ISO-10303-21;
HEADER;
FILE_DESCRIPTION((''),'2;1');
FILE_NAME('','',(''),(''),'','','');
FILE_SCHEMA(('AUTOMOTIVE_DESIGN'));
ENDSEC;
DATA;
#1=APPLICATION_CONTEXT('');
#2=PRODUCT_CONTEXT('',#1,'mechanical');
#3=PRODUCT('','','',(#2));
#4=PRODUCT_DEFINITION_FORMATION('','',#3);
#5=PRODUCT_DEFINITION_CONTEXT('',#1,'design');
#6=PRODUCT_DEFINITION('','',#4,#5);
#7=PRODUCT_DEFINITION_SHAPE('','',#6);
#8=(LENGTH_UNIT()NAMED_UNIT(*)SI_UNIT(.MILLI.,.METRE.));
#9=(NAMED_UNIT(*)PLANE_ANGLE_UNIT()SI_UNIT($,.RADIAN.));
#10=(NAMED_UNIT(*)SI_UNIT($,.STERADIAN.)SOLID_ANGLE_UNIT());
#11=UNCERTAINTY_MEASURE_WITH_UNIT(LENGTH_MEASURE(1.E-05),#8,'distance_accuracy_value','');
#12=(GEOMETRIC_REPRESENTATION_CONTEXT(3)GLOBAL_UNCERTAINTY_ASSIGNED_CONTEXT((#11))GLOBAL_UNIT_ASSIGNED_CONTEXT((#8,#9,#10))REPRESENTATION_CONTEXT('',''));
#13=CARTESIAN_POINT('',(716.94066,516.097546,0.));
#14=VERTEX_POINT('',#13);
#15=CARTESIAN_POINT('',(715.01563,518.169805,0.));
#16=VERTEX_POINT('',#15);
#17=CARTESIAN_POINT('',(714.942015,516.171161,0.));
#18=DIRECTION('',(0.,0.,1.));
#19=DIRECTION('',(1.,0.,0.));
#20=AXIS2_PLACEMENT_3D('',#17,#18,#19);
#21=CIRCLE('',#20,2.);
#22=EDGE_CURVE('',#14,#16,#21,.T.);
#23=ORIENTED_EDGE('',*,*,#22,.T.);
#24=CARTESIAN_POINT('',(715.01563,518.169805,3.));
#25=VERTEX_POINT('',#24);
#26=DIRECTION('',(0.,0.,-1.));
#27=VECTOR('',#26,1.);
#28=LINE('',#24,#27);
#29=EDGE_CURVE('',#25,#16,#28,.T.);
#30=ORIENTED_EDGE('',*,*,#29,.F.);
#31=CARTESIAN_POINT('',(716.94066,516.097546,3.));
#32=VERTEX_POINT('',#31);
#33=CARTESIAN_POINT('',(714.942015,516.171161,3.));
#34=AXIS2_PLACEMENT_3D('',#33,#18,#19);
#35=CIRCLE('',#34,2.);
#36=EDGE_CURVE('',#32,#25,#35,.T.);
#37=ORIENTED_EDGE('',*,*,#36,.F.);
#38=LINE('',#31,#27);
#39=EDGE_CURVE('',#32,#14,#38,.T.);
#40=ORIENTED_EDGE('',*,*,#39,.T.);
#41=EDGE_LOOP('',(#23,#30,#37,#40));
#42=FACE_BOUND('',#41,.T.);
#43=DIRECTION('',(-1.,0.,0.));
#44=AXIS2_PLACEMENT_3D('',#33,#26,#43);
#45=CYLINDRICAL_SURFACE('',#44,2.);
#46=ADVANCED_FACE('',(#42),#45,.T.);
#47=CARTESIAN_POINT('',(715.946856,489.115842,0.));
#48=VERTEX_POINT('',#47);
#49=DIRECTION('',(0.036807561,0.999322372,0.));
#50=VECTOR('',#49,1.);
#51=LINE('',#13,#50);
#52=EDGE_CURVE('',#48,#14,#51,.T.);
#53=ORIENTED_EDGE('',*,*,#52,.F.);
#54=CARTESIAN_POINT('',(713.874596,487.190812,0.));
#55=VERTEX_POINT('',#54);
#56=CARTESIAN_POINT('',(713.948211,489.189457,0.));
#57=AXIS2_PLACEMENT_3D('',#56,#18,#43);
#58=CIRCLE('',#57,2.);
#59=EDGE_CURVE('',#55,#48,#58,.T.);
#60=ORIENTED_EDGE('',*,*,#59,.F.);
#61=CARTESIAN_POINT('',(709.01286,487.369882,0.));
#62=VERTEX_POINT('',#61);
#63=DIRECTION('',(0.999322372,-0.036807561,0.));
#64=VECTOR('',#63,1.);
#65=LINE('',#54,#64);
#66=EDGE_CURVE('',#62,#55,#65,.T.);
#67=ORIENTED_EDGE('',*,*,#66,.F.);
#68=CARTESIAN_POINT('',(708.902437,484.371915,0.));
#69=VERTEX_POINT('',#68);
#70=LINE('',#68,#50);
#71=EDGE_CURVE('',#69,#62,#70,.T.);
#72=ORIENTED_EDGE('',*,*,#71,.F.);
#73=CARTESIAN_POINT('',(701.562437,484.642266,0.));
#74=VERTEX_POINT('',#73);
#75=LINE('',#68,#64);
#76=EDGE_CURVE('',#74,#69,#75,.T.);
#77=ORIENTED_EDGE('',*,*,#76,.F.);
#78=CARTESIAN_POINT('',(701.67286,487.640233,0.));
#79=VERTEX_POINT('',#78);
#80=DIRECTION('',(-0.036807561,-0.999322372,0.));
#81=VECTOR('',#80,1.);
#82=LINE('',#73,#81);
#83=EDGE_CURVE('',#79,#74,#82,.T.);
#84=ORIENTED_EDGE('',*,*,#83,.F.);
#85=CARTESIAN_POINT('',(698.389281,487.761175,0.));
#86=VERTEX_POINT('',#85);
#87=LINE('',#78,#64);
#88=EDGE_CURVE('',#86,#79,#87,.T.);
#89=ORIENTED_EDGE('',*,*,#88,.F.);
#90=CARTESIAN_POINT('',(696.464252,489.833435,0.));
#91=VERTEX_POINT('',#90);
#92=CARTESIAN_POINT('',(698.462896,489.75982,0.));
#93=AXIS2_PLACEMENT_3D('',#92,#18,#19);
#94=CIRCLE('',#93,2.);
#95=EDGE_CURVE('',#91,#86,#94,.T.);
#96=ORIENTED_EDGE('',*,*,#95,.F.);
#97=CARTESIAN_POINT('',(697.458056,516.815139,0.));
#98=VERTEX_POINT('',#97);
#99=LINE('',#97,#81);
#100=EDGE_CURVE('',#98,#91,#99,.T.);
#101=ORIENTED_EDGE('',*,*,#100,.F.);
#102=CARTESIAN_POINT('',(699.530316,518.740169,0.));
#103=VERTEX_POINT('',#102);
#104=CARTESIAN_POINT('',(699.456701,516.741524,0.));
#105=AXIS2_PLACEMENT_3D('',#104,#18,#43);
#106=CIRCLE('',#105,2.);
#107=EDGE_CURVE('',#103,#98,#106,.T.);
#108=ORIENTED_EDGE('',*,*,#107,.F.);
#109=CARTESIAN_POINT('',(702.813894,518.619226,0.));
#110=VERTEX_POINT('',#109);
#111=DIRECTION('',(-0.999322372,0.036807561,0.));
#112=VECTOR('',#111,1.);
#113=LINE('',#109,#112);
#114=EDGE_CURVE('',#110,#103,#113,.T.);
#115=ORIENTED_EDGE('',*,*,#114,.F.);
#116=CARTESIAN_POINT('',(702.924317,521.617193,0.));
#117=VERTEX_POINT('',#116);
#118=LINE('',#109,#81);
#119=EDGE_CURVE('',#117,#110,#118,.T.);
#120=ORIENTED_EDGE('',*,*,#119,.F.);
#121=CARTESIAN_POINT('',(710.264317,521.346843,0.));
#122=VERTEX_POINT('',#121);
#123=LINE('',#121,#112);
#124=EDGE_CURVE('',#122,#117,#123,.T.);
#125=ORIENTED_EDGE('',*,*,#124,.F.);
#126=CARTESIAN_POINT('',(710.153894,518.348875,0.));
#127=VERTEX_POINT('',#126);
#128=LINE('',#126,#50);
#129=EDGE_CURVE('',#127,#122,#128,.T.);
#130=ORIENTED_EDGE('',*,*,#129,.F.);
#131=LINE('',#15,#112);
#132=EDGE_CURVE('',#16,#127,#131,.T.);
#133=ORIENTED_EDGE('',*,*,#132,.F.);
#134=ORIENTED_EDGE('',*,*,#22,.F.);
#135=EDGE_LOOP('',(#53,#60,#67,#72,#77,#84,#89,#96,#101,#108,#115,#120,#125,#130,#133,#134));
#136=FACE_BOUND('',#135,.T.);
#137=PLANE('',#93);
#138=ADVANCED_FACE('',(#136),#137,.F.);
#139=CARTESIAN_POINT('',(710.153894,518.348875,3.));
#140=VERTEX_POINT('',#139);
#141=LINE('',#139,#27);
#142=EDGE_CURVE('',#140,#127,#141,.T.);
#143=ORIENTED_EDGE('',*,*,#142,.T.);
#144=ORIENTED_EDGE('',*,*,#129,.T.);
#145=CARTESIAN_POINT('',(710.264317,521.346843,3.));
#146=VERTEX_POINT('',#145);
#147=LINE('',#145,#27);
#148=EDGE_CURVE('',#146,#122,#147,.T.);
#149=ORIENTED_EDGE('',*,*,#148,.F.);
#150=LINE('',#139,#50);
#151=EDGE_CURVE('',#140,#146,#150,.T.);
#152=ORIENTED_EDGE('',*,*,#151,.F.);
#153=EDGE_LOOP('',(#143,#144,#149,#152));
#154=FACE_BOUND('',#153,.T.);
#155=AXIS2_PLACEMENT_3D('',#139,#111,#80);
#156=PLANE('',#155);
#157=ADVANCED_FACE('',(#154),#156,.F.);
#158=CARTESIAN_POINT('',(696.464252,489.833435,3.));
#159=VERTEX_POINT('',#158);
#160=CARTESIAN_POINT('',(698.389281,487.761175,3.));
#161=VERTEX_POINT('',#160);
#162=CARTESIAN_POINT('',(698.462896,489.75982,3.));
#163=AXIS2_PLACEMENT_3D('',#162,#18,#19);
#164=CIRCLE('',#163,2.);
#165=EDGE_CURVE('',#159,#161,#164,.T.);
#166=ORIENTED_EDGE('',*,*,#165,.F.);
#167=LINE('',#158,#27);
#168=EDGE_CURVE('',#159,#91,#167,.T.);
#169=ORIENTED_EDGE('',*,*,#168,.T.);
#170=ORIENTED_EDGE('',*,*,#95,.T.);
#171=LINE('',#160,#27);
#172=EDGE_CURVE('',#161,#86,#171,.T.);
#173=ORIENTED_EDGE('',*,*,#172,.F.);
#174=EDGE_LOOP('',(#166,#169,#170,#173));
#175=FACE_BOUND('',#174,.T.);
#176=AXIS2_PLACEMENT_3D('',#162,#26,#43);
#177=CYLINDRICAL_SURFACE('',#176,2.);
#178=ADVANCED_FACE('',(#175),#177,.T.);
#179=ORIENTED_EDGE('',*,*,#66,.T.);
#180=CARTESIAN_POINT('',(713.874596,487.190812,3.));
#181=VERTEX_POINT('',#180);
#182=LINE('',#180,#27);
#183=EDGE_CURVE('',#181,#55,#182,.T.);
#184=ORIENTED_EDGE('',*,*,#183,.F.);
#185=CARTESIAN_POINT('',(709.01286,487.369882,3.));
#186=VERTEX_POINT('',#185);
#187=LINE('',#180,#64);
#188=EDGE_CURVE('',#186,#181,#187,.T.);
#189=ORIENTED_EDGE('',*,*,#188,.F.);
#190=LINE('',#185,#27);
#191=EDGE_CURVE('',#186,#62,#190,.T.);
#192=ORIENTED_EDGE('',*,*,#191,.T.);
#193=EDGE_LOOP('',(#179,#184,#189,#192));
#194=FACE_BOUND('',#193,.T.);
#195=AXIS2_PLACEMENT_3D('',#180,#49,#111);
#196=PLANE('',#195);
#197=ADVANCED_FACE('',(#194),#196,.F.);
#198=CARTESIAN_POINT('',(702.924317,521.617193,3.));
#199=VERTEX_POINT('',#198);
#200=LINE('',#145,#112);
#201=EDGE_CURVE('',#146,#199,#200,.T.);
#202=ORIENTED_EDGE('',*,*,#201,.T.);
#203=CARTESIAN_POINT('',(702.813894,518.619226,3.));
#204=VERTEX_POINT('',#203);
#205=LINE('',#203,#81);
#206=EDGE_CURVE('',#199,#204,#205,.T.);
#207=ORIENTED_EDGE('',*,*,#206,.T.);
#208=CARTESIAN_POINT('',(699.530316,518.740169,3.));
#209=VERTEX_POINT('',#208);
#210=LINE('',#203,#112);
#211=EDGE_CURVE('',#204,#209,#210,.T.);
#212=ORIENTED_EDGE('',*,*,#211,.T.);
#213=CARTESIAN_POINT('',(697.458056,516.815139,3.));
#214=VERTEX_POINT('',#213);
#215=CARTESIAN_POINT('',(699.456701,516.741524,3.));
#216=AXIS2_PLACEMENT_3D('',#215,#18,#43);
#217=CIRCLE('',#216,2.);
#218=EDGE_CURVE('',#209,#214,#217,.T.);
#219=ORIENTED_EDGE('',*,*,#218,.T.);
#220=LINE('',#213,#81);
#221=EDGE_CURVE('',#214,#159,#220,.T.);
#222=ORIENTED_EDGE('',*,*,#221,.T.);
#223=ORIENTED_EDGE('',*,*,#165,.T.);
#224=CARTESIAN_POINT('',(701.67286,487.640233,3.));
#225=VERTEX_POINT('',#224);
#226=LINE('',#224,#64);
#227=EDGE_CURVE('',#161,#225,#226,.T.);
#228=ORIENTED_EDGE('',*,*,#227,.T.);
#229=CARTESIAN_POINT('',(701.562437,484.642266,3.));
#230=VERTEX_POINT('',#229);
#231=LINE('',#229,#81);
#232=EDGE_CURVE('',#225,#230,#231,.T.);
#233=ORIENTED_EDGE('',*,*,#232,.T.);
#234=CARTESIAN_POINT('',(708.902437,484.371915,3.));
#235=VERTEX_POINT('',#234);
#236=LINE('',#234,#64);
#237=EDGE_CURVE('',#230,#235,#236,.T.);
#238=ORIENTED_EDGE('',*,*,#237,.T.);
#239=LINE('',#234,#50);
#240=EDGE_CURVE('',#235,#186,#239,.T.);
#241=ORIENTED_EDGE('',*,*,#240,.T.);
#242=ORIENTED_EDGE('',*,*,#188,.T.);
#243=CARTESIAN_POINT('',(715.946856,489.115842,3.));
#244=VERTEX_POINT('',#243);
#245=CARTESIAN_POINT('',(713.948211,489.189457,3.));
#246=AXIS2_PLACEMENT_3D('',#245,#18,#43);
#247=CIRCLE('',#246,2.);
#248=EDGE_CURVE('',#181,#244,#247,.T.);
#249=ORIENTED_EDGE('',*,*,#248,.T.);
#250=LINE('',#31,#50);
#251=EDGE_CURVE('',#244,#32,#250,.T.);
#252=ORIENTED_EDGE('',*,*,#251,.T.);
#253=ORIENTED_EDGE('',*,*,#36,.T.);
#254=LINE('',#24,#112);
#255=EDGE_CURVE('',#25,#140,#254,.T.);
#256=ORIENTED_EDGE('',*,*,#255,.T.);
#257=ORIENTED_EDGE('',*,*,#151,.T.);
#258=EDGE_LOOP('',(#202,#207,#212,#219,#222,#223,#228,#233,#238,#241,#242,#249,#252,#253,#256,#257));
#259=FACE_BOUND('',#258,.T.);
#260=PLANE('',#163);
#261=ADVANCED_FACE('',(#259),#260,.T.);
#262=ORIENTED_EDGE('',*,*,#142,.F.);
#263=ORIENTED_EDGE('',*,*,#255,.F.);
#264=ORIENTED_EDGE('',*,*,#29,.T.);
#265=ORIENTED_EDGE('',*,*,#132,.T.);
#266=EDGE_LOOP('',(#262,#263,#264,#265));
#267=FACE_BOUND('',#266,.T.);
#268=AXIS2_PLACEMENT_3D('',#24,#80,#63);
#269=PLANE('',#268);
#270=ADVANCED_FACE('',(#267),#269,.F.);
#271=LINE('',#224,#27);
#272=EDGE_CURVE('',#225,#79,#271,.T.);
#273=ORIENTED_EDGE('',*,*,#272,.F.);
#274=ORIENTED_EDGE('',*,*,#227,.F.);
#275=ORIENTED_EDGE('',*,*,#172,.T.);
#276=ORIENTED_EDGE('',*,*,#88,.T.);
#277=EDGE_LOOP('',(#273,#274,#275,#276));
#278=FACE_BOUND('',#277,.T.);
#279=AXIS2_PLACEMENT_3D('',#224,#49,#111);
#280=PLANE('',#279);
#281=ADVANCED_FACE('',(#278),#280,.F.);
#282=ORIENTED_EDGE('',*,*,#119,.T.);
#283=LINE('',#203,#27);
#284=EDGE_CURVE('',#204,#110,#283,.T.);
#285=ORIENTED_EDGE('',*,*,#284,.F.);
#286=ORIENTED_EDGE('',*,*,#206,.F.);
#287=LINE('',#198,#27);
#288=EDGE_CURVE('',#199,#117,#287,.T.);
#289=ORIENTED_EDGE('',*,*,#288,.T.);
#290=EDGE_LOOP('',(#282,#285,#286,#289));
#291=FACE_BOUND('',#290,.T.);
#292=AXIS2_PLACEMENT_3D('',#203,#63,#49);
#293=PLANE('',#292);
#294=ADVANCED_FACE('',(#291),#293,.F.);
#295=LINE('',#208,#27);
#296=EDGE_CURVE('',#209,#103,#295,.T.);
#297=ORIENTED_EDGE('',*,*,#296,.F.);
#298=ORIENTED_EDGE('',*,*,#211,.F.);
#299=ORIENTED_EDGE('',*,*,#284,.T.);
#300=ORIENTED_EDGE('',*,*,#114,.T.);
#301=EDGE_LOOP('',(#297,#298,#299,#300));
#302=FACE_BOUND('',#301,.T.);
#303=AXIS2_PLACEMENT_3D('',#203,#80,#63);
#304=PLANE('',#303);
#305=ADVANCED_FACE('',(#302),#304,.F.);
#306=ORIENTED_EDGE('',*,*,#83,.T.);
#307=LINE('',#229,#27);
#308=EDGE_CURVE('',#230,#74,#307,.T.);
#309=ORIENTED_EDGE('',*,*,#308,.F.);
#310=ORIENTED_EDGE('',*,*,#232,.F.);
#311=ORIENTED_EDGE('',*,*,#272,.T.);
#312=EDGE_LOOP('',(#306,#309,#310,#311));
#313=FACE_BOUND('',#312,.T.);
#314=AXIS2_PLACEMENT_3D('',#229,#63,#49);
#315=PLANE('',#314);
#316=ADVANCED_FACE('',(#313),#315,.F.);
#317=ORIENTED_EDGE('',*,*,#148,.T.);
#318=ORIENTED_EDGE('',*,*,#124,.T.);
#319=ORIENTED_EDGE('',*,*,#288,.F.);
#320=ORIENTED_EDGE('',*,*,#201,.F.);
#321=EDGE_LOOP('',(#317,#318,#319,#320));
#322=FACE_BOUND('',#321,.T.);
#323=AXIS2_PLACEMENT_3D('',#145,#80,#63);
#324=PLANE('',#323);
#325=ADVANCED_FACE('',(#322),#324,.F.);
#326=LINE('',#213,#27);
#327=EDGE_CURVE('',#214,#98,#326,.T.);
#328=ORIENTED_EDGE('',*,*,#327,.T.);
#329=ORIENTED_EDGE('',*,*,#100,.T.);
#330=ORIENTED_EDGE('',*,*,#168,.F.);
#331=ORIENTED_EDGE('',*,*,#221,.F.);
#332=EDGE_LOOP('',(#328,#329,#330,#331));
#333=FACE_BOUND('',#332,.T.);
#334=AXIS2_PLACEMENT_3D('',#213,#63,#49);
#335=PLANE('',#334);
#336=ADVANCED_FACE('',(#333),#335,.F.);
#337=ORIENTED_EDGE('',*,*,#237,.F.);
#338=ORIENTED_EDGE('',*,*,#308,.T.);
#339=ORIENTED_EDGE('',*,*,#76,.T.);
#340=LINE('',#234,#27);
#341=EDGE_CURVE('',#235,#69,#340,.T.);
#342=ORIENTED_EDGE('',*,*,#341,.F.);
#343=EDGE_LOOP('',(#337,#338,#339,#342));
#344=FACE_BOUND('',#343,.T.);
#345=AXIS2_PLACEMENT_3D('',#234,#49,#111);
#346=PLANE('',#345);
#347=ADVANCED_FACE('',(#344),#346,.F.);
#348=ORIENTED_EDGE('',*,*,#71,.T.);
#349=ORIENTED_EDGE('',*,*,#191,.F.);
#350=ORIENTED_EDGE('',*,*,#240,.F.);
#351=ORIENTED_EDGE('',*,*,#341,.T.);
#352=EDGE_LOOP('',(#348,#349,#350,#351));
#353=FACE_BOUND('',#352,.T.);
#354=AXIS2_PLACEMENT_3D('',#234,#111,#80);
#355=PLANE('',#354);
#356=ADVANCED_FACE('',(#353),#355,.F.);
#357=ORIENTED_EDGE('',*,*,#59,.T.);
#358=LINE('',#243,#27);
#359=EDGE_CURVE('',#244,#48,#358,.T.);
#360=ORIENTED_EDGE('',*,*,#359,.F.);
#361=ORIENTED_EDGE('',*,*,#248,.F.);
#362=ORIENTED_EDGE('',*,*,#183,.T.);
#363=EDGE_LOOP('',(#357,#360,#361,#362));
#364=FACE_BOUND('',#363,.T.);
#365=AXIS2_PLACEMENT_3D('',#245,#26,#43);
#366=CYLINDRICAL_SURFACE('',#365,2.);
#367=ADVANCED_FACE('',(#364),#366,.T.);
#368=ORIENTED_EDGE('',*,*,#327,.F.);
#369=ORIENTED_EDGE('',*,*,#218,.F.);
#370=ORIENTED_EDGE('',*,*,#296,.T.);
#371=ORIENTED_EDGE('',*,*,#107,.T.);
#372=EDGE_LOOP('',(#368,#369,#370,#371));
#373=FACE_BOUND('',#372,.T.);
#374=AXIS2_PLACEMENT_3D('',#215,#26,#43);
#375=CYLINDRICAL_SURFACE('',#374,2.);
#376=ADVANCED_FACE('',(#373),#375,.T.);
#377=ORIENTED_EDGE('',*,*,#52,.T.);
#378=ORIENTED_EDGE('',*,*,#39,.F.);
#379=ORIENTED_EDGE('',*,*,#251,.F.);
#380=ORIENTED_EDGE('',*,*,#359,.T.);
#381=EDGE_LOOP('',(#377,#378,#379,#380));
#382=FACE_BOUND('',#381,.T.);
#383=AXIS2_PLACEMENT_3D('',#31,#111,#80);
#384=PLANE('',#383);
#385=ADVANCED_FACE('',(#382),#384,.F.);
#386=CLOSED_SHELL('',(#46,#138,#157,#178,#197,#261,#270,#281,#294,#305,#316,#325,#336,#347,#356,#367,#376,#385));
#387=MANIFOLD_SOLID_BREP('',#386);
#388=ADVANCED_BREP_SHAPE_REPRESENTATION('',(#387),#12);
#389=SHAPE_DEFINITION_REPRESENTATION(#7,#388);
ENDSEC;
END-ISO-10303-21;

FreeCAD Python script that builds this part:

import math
import FreeCAD as App
import Part
import Sketcher

doc = App.newDocument("Part")
body = doc.addObject("PartDesign::Body", "Body")

sketch1 = body.newObject("Sketcher::SketchObject", "Sketch")
sketch1.AttachmentSupport = (doc.getObject("XY_Plane"), [""])
sketch1.MapMode = "FlatFace"
sketch1.addGeometry([
    Part.LineSegment(App.Vector(701.7, 487.6, 0), App.Vector(701.6, 484.6, 0)),
    Part.LineSegment(App.Vector(701.6, 484.6, 0), App.Vector(708.9, 484.4, 0)),
    Part.LineSegment(App.Vector(708.9, 484.4, 0), App.Vector(709, 487.4, 0)),
    Part.LineSegment(App.Vector(709, 487.4, 0), App.Vector(713.9, 487.2, 0)),
    Part.ArcOfCircle(Part.Circle(App.Vector(713.9, 489.2, 0), App.Vector(0, 0, 1), 2), math.radians(-92), math.radians(-2)),
    Part.LineSegment(App.Vector(715.9, 489.1, 0), App.Vector(716.9, 516.1, 0)),
    Part.ArcOfCircle(Part.Circle(App.Vector(714.9, 516.2, 0), App.Vector(0, 0, 1), 2), math.radians(-2), math.radians(88)),
    Part.LineSegment(App.Vector(715, 518.2, 0), App.Vector(710.2, 518.3, 0)),
    Part.LineSegment(App.Vector(710.2, 518.3, 0), App.Vector(710.3, 521.3, 0)),
    Part.LineSegment(App.Vector(710.3, 521.3, 0), App.Vector(702.9, 521.6, 0)),
    Part.LineSegment(App.Vector(702.9, 521.6, 0), App.Vector(702.8, 518.6, 0)),
    Part.LineSegment(App.Vector(702.8, 518.6, 0), App.Vector(699.5, 518.7, 0)),
    Part.ArcOfCircle(Part.Circle(App.Vector(699.5, 516.7, 0), App.Vector(0, 0, 1), 2), math.radians(88), math.radians(178)),
    Part.LineSegment(App.Vector(697.5, 516.8, 0), App.Vector(696.5, 489.8, 0)),
    Part.ArcOfCircle(Part.Circle(App.Vector(698.5, 489.8, 0), App.Vector(0, 0, 1), 2), math.radians(178), math.radians(268)),
    Part.LineSegment(App.Vector(698.4, 487.8, 0), App.Vector(701.7, 487.6, 0)),
], False)
sketch1.addConstraint([
    Sketcher.Constraint("Coincident", 0, 2, 1, 1),
    Sketcher.Constraint("Coincident", 1, 2, 2, 1),
    Sketcher.Constraint("Coincident", 2, 2, 3, 1),
    Sketcher.Constraint("Tangent", 3, 2, 4, 1),
    Sketcher.Constraint("Tangent", 4, 2, 5, 1),
    Sketcher.Constraint("Tangent", 5, 2, 6, 1),
    Sketcher.Constraint("Tangent", 6, 2, 7, 1),
    Sketcher.Constraint("Coincident", 7, 2, 8, 1),
    Sketcher.Constraint("Coincident", 8, 2, 9, 1),
    Sketcher.Constraint("Coincident", 9, 2, 10, 1),
    Sketcher.Constraint("Coincident", 10, 2, 11, 1),
    Sketcher.Constraint("Tangent", 11, 2, 12, 1),
    Sketcher.Constraint("Tangent", 12, 2, 13, 1),
    Sketcher.Constraint("Tangent", 13, 2, 14, 1),
    Sketcher.Constraint("Tangent", 14, 2, 15, 1),
    Sketcher.Constraint("Coincident", 15, 2, 0, 1),
    Sketcher.Constraint("Equal", 4, 6),
    Sketcher.Constraint("Equal", 6, 12),
    Sketcher.Constraint("Equal", 12, 14),
    Sketcher.Constraint("Perpendicular", 0, 1),
    Sketcher.Constraint("Perpendicular", 1, 2),
    Sketcher.Constraint("Perpendicular", 2, 3),
    Sketcher.Constraint("Perpendicular", 3, 5),
    Sketcher.Constraint("Perpendicular", 5, 7),
    Sketcher.Constraint("Perpendicular", 7, 8),
    Sketcher.Constraint("Perpendicular", 8, 9),
    Sketcher.Constraint("Perpendicular", 9, 10),
    Sketcher.Constraint("Perpendicular", 10, 11),
    Sketcher.Constraint("Perpendicular", 11, 13),
    Sketcher.Constraint("Perpendicular", 13, 15),
    Sketcher.Constraint("Equal", 0, 2),
    Sketcher.Constraint("Equal", 3, 7),
    Sketcher.Constraint("Equal", 2, 8),
    Sketcher.Constraint("Equal", 1, 9),
    Sketcher.Constraint("Equal", 8, 10),
    Sketcher.Constraint("Radius", 4, 2.0),
    Sketcher.Constraint("Distance", 0, 3.0),
    Sketcher.Constraint("Distance", 5, 27.0),
    Sketcher.Constraint("DistanceX", 0, 2, 1, 2, 7.34),
    Sketcher.Constraint("DistanceX", 11, 2, 9, 2, 3.394001),
    Sketcher.Constraint("DistanceX", -1, 1, 12, 3, 699.456701),
    Sketcher.Constraint("DistanceX", 14, 3, 3, 2, 15.411699),
    Sketcher.Constraint("DistanceX", -1, 1, 4, 3, 713.948211),
    Sketcher.Constraint("DistanceY", -1, 1, 6, 3, 516.171161),
])
pad1 = body.newObject("PartDesign::Pad", "Pad")
pad1.Profile = sketch1
pad1.Length = 3

doc.recompute()
